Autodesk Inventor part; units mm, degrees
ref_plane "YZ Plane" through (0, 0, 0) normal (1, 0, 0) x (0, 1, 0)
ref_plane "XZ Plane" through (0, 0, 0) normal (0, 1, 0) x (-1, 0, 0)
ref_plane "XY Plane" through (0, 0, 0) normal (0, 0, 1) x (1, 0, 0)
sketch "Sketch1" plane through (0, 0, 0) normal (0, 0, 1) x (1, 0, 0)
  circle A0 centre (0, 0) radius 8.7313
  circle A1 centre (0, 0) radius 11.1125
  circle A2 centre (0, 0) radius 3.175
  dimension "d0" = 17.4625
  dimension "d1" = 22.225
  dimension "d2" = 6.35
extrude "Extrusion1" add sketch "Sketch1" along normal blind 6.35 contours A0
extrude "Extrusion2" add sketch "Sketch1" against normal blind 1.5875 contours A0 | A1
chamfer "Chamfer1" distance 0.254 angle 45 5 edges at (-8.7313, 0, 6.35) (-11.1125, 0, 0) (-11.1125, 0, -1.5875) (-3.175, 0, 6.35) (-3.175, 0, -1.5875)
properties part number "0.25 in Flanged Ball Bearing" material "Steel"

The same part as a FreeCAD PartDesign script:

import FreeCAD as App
import Part
import Sketcher

V = App.Vector
Q = App.Units.Quantity


def edges_at(feature, points):
    """Names of the edges that pass closest to the given points."""
    edges = feature.Shape.Edges
    near = lambda p: min(range(len(edges)), key=lambda i: edges[i].distToShape(Part.Vertex(*p))[0])
    return sorted({f"Edge{near(p) + 1}" for p in points})

doc = App.newDocument("Part")
body = doc.addObject("PartDesign::Body", "Body")

# Sketch on XY plane
sketch1 = body.newObject("Sketcher::SketchObject", "Sketch")
sketch1.AttachmentSupport = (doc.getObject("XY_Plane"), [""])
sketch1.MapMode = "FlatFace"
sketch1.addGeometry(Part.Circle(V(0, 0, 0), V(0, 0, 1), 8.7313), False)
sketch1.addGeometry(Part.Circle(V(0, 0, 0), V(0, 0, 1), 3.175), False)
sketch1.addConstraint(Sketcher.Constraint("Coincident", 0, 3, -1, 1))
sketch1.addConstraint(Sketcher.Constraint("Coincident", 1, 3, -1, 1))
sketch1.addConstraint(Sketcher.Constraint("Diameter", 1, Q("0.25 in")))
sketch1.addConstraint(Sketcher.Constraint("Diameter", 0, Q("0.6875 in")))
pad1 = body.newObject("PartDesign::Pad", "Pad")
pad1.Profile = sketch1
pad1.Length = Q("0.25 in")

# Sketch on XY plane
sketch2 = body.newObject("Sketcher::SketchObject", "Sketch001")
sketch2.AttachmentSupport = (doc.getObject("XY_Plane"), [""])
sketch2.MapMode = "FlatFace"
sketch2.addGeometry(Part.Circle(V(0, 0, 0), V(0, 0, 1), 11.1125), False)
sketch2.addGeometry(Part.Circle(V(0, 0, 0), V(0, 0, 1), 3.175), False)
sketch2.addConstraint(Sketcher.Constraint("Coincident", 0, 3, -1, 1))
sketch2.addConstraint(Sketcher.Constraint("Coincident", 1, 3, -1, 1))
sketch2.addConstraint(Sketcher.Constraint("Diameter", 1, Q("0.25 in")))
sketch2.addConstraint(Sketcher.Constraint("Diameter", 0, Q("0.875 in")))
pad2 = body.newObject("PartDesign::Pad", "Pad001")
pad2.Profile = sketch2
pad2.Length = Q("0.0625 in")
pad2.Reversed = True
doc.recompute()

chamfer = body.newObject("PartDesign::Chamfer", "Chamfer")
chamfer.Base = (pad2, edges_at(pad2, [
    (-8.731, 0, 6.35),
    (-11.113, 0, 0),
    (-11.113, 0, -1.587),
    (-3.175, 0, 6.35),
    (-3.175, 0, -1.587),
]))
chamfer.Size = Q("0.01 in")

doc.recompute()
